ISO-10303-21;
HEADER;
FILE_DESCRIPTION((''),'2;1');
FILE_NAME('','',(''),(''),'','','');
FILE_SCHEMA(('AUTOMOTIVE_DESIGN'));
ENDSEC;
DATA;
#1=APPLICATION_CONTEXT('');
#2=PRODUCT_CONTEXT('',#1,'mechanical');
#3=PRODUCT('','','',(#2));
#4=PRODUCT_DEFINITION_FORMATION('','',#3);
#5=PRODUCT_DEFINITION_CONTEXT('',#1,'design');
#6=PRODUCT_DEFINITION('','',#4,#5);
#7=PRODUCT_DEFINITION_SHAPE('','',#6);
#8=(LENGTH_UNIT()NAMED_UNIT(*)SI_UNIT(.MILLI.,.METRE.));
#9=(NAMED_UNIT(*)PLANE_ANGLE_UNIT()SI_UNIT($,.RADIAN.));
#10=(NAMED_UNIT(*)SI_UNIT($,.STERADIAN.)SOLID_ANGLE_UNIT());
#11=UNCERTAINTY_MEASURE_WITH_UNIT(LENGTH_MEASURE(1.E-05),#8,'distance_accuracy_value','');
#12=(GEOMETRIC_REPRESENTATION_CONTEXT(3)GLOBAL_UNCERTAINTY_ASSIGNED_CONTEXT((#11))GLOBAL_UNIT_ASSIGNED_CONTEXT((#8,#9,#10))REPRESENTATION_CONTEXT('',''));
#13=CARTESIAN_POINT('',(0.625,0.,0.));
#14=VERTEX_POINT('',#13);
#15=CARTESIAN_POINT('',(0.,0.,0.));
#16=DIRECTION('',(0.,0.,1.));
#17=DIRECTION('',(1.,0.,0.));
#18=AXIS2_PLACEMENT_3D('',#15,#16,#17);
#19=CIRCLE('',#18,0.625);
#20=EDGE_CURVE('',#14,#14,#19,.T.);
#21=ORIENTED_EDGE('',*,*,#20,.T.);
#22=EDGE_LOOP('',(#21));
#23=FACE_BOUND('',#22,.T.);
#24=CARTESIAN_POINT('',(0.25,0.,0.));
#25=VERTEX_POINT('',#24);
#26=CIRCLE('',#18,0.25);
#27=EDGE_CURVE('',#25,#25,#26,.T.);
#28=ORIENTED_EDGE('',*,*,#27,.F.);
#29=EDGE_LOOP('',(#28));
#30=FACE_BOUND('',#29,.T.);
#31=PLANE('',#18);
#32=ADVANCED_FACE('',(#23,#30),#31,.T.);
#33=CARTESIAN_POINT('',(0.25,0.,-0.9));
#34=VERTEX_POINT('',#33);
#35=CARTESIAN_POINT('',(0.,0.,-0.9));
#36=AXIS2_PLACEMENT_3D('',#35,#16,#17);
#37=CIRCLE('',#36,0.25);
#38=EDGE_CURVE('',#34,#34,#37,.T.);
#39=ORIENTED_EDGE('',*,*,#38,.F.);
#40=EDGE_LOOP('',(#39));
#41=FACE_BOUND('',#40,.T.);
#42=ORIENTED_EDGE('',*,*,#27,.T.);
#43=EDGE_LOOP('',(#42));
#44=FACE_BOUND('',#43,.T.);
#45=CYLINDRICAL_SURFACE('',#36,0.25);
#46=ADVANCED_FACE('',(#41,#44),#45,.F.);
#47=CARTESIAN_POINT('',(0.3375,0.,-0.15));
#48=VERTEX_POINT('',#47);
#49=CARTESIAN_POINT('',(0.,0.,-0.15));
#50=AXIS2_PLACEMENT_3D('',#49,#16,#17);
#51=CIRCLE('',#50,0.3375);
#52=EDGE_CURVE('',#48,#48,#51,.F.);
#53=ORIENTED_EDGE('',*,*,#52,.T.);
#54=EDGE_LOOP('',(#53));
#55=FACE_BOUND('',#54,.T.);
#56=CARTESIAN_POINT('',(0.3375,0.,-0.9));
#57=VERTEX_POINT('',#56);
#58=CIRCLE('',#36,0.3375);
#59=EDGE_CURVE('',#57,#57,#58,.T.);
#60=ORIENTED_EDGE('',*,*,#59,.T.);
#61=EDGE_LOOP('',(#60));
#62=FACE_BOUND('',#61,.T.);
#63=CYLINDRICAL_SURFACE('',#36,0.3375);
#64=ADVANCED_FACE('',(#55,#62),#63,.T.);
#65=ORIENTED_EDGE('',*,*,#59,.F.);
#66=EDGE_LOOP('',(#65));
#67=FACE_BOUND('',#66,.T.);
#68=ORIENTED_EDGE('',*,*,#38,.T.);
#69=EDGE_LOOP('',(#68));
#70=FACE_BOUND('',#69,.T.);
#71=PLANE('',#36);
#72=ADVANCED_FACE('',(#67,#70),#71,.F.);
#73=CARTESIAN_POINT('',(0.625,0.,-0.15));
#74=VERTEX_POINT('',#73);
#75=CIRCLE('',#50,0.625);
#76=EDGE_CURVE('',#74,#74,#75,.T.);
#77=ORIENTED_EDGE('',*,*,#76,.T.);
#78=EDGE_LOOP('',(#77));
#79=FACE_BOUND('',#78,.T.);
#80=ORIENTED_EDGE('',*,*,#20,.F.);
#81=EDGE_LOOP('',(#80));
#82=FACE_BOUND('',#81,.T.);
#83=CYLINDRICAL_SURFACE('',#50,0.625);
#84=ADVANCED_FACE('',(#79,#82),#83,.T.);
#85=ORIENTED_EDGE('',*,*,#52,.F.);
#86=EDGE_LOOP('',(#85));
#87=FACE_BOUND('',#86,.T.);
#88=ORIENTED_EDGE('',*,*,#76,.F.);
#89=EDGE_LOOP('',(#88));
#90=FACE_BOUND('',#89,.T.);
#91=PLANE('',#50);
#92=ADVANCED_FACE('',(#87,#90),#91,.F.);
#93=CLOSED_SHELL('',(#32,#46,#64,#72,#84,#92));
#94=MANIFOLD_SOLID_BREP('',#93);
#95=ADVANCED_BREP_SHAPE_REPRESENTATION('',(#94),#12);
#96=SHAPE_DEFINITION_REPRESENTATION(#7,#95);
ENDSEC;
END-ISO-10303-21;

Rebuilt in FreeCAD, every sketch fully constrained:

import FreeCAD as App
import Part
import Sketcher
from FreeCAD import Vector
Q = App.Units.Quantity

doc = App.newDocument("Part")
body = doc.addObject("PartDesign::Body", "Body")

# Sketch on XY plane
sketch1 = doc.addObject("Sketcher::SketchObject", "Sketch")
body.addObject(sketch1)
sketch1.AttachmentSupport = (doc.XY_Plane, [""])
sketch1.MapMode = "FlatFace"
sketch1.addGeometry(Part.Circle(Vector(0, 0, 0), Vector(0, 0, 1), 0.34), False)
sketch1.addConstraint([
    Sketcher.Constraint("Coincident", 0, 3, -1, 1),
    Sketcher.Constraint("Diameter", 0, Q("0.675 mm")),
])
pad1 = doc.addObject("PartDesign::Pad", "Pad")
body.addObject(pad1)
pad1.Profile = sketch1
pad1.Length = 0.9
pad1.Reversed = True

# Sketch on XY plane
sketch2 = doc.addObject("Sketcher::SketchObject", "Sketch001")
body.addObject(sketch2)
sketch2.AttachmentSupport = (doc.XY_Plane, [""])
sketch2.MapMode = "FlatFace"
sketch2.addGeometry(Part.Circle(Vector(0, 0, 0), Vector(0, 0, 1), 0.6), False)
sketch2.addConstraint([
    Sketcher.Constraint("Coincident", 0, 3, -1, 1),
    Sketcher.Constraint("Diameter", 0, Q("1.25 mm")),
])
pad2 = doc.addObject("PartDesign::Pad", "Pad001")
body.addObject(pad2)
pad2.Profile = sketch2
pad2.Length = 0.15
pad2.Reversed = True

# Sketch on XY plane
sketch3 = doc.addObject("Sketcher::SketchObject", "Sketch002")
body.addObject(sketch3)
sketch3.AttachmentSupport = (doc.XY_Plane, [""])
sketch3.MapMode = "FlatFace"
sketch3.addGeometry(Part.Circle(Vector(0, 0, 0), Vector(0, 0, 1), 0.25), False)
sketch3.addConstraint([
    Sketcher.Constraint("Coincident", 0, 3, -1, 1),
    Sketcher.Constraint("Diameter", 0, Q("0.5 mm")),
])
pocket1 = doc.addObject("PartDesign::Pocket", "Pocket")
body.addObject(pocket1)
pocket1.Profile = sketch3
pocket1.Type = "ThroughAll"

doc.recompute()
